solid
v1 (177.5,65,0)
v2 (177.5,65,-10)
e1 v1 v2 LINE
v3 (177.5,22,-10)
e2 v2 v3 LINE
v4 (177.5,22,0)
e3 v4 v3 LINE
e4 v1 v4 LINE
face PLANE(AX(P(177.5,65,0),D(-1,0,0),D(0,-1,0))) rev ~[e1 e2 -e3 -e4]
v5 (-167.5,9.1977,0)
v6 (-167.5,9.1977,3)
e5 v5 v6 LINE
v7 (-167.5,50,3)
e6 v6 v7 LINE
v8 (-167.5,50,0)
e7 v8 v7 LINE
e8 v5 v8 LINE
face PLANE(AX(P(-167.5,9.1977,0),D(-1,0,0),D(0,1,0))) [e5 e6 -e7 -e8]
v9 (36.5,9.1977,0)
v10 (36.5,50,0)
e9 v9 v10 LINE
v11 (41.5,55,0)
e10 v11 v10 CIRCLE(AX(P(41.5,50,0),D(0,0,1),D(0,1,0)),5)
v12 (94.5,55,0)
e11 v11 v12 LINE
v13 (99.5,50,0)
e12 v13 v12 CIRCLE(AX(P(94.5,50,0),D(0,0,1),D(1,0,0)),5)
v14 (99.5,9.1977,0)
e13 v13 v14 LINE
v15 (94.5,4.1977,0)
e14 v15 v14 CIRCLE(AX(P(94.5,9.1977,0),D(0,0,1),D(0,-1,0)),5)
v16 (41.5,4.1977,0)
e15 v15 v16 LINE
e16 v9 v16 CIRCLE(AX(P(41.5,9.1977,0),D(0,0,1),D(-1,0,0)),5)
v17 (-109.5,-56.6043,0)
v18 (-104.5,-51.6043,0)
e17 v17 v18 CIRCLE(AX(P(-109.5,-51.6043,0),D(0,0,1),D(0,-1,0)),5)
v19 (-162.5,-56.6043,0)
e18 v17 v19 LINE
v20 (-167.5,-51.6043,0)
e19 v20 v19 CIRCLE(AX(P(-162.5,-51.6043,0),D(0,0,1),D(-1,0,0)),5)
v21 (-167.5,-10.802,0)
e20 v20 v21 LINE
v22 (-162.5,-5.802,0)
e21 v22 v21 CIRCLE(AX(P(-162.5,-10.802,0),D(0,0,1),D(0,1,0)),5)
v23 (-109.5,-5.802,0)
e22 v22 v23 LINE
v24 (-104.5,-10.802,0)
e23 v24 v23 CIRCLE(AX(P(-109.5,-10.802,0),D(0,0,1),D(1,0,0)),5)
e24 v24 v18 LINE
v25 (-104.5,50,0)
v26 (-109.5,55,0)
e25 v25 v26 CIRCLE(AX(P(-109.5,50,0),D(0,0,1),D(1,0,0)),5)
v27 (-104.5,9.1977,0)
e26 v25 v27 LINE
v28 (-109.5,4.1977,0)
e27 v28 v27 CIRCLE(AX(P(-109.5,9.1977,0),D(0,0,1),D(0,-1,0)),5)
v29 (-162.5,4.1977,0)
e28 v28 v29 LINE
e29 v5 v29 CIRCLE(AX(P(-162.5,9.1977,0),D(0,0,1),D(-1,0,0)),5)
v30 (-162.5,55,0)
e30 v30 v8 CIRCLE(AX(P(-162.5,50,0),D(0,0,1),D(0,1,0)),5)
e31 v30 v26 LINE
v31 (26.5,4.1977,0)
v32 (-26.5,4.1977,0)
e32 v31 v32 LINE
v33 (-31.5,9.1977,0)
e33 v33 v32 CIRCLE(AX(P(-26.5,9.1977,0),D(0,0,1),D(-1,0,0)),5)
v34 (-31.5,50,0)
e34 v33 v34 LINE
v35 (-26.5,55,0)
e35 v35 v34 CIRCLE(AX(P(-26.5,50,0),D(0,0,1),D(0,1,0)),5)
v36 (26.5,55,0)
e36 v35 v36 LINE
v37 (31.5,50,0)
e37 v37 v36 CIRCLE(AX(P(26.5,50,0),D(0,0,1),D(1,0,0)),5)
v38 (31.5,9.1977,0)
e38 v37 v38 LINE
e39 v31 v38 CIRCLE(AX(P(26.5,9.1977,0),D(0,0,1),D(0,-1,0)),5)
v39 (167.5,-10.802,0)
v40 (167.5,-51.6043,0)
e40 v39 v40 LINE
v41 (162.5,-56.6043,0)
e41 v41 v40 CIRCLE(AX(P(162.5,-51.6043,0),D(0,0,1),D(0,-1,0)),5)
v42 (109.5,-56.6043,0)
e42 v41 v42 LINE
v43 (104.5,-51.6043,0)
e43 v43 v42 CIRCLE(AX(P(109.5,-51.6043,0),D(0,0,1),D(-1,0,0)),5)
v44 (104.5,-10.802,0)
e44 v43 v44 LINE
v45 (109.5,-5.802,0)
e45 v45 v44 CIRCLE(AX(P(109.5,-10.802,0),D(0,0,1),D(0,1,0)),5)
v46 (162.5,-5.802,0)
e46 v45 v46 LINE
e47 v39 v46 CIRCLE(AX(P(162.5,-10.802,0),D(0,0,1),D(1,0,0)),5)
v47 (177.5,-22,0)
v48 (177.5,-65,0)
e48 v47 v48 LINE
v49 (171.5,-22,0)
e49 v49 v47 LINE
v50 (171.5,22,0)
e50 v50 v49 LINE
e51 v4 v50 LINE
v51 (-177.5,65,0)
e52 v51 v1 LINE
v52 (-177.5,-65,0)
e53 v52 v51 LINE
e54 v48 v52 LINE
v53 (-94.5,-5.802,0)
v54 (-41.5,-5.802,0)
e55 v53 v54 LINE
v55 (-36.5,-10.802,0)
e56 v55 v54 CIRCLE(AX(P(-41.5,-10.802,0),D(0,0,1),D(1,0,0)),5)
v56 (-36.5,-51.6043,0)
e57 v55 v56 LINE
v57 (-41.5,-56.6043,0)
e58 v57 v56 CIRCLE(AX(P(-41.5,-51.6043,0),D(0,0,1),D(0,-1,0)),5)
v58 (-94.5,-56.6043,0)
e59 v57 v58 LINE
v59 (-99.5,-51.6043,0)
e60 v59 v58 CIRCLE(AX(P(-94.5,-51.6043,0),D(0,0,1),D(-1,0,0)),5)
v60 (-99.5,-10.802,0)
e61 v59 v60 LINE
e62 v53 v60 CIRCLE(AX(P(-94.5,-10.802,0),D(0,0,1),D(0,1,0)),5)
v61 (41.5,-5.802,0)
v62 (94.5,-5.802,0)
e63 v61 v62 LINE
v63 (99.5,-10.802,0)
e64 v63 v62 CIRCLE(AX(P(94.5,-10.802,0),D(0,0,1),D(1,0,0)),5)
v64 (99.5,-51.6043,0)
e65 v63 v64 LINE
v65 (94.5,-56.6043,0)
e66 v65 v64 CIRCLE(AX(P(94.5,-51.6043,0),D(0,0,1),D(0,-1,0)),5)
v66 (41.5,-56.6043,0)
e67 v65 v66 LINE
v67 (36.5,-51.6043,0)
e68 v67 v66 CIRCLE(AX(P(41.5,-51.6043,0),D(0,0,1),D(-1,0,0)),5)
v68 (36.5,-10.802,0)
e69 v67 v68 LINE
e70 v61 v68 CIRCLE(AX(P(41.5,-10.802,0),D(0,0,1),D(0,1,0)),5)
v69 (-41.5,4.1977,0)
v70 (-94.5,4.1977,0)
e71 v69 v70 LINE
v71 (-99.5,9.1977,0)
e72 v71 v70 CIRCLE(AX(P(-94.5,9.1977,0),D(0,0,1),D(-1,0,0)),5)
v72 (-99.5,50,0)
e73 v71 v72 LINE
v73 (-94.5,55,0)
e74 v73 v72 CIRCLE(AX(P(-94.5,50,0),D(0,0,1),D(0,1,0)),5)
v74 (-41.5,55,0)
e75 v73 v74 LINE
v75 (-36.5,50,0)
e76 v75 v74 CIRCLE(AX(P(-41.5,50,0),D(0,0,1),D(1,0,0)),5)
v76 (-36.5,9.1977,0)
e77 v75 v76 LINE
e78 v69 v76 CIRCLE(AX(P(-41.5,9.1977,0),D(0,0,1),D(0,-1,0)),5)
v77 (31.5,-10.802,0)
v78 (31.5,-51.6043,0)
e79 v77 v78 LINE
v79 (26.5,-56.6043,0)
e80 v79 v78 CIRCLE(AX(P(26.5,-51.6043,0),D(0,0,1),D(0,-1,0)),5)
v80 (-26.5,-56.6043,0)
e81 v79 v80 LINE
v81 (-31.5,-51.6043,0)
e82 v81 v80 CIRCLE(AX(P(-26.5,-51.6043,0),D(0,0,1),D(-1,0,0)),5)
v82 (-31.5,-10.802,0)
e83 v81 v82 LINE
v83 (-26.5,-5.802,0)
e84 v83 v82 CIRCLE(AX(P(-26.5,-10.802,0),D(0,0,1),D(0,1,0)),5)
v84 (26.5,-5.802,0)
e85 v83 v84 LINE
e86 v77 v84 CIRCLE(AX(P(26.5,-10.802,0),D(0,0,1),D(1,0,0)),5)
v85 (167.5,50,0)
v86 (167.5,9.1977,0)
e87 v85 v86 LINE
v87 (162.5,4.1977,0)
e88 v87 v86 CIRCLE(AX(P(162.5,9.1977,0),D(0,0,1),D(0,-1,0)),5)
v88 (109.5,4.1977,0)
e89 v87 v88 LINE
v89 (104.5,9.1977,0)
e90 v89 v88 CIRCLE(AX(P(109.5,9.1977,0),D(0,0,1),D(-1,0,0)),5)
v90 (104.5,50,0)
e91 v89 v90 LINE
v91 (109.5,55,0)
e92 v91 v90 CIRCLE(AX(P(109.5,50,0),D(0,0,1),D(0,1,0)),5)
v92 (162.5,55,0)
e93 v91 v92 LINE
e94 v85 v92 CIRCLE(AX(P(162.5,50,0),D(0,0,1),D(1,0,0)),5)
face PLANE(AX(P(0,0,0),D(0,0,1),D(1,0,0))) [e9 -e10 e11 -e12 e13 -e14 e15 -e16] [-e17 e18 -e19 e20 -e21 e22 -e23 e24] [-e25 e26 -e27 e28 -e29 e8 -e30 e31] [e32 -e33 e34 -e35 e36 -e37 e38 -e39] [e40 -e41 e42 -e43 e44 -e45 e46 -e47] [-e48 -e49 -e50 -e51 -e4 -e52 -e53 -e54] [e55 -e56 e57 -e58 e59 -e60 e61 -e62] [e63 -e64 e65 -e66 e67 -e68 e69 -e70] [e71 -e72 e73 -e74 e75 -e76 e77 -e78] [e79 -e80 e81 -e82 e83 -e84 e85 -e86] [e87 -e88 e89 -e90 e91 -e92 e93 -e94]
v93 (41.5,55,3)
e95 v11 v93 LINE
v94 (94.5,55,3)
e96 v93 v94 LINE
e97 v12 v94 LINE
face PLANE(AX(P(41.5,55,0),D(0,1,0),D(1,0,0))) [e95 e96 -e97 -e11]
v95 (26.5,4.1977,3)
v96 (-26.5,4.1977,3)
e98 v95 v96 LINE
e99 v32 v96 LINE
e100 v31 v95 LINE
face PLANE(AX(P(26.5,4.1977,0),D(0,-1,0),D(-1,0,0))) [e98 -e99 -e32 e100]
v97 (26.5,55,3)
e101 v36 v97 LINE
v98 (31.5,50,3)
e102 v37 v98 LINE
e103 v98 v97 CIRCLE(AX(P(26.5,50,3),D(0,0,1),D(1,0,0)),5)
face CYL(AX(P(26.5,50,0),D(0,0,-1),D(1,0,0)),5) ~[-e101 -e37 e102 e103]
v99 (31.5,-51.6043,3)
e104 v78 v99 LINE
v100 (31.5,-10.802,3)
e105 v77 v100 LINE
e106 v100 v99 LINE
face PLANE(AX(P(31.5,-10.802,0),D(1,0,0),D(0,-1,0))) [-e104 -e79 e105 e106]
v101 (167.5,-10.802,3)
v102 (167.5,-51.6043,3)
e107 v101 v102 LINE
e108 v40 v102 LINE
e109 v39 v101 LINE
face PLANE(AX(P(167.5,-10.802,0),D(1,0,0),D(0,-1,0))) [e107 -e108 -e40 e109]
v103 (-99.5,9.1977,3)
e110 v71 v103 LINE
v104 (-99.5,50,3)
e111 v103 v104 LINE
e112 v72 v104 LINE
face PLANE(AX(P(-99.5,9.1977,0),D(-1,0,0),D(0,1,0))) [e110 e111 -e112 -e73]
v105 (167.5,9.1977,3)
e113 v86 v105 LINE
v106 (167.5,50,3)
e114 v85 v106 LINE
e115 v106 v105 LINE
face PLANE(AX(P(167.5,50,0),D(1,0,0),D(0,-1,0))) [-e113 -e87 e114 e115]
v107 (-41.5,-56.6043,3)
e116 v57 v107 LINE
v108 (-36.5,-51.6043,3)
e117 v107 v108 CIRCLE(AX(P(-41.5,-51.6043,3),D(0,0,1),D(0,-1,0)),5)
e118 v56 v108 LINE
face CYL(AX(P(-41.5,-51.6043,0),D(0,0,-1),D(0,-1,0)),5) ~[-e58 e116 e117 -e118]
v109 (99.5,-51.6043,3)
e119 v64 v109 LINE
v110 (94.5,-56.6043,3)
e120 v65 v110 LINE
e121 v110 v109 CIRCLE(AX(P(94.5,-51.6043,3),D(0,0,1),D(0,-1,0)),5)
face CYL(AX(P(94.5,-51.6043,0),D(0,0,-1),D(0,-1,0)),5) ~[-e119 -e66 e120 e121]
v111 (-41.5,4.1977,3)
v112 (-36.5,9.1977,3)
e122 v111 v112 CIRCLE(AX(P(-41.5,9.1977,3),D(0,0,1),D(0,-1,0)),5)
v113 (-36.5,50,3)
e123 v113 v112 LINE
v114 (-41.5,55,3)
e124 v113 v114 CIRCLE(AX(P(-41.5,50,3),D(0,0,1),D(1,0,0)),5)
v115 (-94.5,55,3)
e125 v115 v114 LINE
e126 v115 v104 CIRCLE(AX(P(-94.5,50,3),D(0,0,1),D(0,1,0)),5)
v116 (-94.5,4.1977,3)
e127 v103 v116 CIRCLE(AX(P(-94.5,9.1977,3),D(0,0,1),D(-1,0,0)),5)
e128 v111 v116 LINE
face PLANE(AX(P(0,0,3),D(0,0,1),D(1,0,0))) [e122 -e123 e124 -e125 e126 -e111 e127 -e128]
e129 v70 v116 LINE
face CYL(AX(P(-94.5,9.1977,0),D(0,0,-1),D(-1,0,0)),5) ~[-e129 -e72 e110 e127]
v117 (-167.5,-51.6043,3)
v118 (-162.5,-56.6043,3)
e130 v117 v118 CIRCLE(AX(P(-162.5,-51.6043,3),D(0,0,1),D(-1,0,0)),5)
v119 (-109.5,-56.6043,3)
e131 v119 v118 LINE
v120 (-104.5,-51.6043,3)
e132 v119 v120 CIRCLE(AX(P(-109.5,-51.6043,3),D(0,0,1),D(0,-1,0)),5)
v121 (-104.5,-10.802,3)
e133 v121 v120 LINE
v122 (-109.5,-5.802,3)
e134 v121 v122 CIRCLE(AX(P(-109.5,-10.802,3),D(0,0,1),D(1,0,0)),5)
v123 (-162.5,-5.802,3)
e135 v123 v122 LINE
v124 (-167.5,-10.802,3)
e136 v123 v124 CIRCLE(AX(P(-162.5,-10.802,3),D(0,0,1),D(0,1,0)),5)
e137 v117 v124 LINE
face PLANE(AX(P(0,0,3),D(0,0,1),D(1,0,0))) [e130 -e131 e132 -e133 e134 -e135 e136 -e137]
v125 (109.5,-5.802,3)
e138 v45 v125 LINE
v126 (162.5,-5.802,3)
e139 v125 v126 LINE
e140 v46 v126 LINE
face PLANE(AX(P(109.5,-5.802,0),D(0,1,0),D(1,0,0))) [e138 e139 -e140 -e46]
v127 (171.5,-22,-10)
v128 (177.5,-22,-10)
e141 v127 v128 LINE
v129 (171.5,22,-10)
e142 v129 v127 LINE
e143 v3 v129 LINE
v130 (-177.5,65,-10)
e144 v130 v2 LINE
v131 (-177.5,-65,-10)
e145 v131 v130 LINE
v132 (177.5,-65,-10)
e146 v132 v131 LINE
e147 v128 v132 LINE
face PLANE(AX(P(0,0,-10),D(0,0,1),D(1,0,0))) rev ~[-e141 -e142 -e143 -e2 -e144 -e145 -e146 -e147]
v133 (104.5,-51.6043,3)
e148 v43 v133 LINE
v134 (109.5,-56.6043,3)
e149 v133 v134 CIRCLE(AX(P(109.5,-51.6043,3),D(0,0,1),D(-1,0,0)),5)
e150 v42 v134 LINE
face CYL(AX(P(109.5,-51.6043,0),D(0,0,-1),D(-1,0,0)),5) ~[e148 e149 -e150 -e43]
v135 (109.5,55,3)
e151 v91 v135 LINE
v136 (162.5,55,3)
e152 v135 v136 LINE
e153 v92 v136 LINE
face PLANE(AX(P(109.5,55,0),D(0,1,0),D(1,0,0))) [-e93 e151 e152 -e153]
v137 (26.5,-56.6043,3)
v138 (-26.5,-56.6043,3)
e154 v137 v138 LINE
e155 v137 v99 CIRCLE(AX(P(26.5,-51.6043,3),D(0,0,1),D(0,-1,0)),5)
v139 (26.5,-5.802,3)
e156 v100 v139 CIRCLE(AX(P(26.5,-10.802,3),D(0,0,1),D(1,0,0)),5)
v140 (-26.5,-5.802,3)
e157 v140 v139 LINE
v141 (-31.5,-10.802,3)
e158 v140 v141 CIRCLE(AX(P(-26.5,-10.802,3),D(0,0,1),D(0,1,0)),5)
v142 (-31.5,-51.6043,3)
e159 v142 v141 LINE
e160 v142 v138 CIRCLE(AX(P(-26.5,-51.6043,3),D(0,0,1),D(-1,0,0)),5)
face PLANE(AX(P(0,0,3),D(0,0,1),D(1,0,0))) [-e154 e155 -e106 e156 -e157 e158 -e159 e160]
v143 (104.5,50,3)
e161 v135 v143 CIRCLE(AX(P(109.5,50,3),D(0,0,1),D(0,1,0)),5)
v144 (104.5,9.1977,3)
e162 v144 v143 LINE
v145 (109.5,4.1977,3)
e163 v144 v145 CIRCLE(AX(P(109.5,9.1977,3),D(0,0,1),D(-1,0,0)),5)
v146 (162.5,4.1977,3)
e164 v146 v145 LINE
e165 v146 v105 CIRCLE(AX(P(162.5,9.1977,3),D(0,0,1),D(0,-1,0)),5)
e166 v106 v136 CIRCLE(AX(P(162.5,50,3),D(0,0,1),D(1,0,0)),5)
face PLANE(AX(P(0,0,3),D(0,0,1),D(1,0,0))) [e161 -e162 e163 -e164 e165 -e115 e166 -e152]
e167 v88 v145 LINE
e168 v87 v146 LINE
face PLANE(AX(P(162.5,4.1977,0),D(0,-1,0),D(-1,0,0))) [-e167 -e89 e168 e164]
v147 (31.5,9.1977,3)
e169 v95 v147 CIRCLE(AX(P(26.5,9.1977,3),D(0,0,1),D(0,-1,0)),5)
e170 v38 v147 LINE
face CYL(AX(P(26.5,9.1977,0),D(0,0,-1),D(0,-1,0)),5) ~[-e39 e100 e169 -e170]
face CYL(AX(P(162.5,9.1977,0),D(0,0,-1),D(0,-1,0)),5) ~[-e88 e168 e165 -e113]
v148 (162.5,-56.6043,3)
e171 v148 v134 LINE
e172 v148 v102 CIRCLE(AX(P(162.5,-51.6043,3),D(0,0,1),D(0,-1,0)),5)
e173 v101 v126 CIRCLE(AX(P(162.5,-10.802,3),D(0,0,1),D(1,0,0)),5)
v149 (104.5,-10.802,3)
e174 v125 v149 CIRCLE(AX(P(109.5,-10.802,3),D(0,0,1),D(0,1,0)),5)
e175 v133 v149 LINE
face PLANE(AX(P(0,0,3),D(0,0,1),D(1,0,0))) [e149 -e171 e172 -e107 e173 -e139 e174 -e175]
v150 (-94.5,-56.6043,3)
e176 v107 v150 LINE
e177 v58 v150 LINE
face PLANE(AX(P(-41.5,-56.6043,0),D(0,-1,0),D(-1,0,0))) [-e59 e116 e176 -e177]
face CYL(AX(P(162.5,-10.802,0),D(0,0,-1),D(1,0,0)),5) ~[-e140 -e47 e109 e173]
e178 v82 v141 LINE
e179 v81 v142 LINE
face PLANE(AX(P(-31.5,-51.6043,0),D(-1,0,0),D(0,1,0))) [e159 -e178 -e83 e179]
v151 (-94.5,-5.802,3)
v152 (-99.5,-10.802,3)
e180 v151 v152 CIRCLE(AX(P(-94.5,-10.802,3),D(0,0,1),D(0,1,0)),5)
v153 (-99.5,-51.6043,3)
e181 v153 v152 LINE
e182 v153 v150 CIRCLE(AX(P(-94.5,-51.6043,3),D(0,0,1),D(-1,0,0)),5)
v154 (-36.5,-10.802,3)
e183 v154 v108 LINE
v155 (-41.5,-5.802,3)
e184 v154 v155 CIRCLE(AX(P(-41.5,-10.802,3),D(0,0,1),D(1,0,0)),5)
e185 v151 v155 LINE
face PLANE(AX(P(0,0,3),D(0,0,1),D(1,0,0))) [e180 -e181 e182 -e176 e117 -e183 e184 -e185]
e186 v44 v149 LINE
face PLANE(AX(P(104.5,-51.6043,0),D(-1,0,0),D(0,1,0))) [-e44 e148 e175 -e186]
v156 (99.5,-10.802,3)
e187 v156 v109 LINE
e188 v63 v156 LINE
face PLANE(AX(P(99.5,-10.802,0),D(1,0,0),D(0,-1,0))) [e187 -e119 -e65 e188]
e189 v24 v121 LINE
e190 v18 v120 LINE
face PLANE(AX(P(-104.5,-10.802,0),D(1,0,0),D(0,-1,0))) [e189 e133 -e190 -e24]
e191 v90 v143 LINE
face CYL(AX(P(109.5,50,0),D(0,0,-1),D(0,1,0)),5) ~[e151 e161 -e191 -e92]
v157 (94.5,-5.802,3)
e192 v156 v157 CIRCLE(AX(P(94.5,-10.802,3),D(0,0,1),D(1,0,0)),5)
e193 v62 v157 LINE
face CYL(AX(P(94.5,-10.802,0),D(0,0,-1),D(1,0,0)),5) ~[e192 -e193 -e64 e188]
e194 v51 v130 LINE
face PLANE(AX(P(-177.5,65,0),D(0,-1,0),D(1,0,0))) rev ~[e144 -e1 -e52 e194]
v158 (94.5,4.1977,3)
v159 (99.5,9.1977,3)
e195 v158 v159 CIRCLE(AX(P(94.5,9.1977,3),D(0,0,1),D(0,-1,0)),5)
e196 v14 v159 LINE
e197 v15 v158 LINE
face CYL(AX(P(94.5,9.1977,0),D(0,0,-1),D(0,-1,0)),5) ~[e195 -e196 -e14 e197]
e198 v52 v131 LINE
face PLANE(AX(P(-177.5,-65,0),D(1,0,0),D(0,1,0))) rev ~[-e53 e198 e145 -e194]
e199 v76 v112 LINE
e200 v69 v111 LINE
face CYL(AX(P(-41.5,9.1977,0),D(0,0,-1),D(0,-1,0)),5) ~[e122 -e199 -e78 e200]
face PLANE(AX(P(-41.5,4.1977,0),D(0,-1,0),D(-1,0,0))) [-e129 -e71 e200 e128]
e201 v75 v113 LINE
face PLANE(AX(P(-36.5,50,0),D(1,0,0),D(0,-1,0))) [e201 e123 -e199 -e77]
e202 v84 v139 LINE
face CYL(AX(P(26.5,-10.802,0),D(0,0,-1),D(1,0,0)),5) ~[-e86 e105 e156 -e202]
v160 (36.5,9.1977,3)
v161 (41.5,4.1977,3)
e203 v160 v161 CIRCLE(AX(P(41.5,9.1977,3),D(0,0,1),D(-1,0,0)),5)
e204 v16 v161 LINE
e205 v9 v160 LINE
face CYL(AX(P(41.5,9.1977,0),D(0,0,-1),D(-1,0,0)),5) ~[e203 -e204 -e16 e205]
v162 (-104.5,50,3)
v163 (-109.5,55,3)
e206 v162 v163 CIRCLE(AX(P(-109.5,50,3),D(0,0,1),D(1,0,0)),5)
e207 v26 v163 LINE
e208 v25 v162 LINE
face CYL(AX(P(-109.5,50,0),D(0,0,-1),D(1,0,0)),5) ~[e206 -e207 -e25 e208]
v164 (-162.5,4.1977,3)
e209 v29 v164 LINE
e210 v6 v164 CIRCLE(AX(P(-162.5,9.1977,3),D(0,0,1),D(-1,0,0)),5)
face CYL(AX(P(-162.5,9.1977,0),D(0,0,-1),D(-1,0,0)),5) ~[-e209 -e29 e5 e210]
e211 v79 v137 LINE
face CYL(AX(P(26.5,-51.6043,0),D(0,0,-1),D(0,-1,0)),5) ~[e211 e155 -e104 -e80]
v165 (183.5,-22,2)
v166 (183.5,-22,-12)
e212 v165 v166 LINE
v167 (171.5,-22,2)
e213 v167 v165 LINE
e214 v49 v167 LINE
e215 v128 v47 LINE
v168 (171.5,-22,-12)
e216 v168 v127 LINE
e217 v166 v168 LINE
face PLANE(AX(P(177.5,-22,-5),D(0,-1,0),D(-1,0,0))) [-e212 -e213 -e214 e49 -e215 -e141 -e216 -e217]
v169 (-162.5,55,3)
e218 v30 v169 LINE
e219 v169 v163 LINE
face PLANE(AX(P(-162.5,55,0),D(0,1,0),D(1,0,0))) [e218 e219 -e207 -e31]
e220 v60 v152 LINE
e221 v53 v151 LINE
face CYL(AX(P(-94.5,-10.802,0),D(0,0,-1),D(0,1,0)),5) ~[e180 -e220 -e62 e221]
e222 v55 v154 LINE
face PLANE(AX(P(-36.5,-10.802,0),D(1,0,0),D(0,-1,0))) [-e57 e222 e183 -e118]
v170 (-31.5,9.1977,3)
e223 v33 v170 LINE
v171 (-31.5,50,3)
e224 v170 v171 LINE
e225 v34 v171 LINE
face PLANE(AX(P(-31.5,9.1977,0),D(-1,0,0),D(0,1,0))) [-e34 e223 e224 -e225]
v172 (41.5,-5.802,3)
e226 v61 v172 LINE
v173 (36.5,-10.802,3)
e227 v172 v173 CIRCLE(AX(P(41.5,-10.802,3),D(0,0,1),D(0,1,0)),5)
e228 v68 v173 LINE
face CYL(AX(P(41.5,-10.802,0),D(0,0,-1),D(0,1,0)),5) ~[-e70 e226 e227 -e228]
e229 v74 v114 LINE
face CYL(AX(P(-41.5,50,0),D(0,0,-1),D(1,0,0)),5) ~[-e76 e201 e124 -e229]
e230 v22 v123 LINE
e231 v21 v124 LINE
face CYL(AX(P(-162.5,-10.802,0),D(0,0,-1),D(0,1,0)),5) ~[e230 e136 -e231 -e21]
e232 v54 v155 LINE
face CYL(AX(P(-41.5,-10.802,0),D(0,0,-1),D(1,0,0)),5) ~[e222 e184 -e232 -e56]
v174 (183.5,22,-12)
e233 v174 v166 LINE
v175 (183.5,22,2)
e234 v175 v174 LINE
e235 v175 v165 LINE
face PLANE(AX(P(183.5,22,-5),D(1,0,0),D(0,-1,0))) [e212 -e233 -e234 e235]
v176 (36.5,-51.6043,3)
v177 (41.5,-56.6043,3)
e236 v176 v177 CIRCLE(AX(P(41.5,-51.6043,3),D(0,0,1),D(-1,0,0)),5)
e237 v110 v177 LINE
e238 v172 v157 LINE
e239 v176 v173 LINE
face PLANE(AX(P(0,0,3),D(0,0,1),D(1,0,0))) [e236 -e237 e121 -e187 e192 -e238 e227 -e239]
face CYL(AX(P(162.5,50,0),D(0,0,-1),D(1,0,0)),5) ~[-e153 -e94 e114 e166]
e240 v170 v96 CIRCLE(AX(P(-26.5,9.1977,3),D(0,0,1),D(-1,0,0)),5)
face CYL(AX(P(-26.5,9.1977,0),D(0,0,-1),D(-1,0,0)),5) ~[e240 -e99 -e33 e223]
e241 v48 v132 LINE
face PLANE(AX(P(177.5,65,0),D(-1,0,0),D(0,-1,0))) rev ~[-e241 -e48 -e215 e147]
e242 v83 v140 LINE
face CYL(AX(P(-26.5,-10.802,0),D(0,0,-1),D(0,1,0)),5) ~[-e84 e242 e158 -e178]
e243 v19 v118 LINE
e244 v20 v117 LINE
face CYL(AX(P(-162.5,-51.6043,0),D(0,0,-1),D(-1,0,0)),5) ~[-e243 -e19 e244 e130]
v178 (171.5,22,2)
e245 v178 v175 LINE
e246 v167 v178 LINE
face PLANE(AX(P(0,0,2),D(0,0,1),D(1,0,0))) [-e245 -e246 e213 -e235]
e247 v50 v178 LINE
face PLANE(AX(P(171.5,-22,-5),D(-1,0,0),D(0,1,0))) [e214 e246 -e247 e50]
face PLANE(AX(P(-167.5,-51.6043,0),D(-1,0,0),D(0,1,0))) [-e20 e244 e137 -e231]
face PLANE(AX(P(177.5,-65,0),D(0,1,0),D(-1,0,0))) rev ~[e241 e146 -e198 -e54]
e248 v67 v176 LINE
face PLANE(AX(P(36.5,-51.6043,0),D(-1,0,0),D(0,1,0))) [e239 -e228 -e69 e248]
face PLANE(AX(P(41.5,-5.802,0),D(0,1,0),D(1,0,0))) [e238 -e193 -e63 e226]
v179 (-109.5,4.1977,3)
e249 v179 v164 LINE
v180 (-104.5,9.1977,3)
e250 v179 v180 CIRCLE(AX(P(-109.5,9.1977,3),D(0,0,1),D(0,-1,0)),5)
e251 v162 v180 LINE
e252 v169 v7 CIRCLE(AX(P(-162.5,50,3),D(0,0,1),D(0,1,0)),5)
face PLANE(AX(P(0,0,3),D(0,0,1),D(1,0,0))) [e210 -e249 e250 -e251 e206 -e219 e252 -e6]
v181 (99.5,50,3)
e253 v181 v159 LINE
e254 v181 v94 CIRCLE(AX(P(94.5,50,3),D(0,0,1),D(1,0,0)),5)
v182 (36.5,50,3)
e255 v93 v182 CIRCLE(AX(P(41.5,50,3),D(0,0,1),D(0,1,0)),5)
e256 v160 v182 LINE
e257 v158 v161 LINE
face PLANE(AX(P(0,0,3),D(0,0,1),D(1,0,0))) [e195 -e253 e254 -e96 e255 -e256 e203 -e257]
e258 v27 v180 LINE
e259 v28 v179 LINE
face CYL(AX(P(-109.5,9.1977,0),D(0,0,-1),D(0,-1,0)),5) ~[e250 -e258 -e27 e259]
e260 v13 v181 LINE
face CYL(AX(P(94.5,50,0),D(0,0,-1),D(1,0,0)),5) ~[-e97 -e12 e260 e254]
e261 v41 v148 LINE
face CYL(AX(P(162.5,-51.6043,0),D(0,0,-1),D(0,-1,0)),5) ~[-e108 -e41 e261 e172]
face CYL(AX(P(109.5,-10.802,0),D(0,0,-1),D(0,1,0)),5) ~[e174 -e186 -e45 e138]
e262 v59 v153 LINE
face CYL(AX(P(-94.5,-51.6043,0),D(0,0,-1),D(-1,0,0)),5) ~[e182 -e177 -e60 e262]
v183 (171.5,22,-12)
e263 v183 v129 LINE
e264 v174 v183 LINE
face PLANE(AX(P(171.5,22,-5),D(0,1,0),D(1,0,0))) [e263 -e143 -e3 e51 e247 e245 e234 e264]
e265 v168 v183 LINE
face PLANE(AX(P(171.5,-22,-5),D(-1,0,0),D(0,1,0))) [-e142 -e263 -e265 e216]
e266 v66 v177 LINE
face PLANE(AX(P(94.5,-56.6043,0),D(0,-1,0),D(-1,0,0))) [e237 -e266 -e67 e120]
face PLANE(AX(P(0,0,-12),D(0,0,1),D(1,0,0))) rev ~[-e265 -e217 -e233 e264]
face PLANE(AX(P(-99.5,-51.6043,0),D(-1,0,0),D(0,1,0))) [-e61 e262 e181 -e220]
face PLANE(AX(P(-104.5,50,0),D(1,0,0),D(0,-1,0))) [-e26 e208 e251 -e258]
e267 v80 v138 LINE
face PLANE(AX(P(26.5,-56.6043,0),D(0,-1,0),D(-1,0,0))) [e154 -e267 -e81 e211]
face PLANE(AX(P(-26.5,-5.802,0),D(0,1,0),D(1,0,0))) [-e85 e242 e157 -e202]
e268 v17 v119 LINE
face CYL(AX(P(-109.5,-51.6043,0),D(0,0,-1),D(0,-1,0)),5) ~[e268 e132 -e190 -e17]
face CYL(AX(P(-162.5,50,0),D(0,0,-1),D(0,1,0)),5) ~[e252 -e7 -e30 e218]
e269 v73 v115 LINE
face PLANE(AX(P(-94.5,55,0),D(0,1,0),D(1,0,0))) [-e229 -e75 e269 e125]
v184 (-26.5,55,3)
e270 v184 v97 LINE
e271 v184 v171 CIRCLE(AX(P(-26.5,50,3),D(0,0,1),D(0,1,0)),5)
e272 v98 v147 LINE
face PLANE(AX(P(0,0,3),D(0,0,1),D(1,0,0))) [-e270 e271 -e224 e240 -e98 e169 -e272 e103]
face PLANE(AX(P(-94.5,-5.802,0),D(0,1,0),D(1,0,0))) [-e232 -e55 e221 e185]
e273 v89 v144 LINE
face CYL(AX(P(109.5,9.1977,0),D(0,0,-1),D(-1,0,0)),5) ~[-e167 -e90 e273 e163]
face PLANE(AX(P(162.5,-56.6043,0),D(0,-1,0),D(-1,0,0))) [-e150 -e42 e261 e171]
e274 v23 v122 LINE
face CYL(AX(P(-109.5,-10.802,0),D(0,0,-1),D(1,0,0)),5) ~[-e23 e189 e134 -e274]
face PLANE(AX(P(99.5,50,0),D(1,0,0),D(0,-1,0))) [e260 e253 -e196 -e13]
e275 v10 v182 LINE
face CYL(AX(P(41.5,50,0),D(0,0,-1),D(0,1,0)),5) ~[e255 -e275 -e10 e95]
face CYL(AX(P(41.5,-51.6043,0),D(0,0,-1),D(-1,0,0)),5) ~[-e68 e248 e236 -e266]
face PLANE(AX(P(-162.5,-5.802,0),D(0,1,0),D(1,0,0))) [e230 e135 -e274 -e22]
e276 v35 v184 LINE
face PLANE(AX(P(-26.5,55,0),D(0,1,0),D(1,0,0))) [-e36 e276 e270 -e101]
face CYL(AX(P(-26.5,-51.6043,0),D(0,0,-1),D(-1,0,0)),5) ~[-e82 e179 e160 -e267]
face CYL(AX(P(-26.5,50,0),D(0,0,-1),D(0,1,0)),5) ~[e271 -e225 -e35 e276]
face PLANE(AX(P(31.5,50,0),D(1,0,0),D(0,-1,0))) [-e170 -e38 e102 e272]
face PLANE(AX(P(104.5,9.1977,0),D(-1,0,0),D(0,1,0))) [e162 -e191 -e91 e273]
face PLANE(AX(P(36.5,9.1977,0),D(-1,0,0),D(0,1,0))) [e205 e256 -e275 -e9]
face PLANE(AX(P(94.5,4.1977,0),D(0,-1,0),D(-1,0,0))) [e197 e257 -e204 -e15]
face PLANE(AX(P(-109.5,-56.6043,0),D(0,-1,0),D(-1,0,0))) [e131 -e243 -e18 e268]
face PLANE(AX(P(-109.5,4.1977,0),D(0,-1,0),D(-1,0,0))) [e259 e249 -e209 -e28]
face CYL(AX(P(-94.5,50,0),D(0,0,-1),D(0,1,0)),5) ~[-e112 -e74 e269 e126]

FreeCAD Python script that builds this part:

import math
import FreeCAD as App
import Part
import Sketcher
from FreeCAD import Vector


def add_polygon(sketch, points):
    """Adds a closed chain of lines whose ends are joined by coincident constraints."""
    first, n = sketch.GeometryCount, len(points)
    for a, b in zip(points, points[1:] + points[:1]):
        sketch.addGeometry(Part.LineSegment(App.Vector(*a, 0), App.Vector(*b, 0)), False)
    for i in range(n):
        sketch.addConstraint(Sketcher.Constraint("Coincident", first + i, 2, first + (i + 1) % n, 1))

doc = App.newDocument("Part")
params = doc.addObject("Spreadsheet::Sheet", "Params")
for row, (alias, value) in enumerate([
    ("sketch1_width", "355 mm"),
    ("sketch1_height", "130 mm"),
    ("pad1_length", "10 mm"),
    ("sketch2_radius", "5 mm"),
    ("sketch2_width", "53 mm"),
    ("pad2_length", "3 mm"),
    ("sketch3_width", "12 mm"),
    ("sketch3_height", "44 mm"),
    ("pad3_length", "14 mm"),
], start=1):
    params.set(f"A{row}", alias)
    params.set(f"B{row}", "=" + value)
    params.setAlias(f"B{row}", alias)

body = doc.addObject("PartDesign::Body", "Body")

# Sketch on XY plane
sketch1 = body.newObject("Sketcher::SketchObject", "Sketch")
sketch1.AttachmentSupport = (doc.getObject("XY_Plane"), [""])
sketch1.MapMode = "FlatFace"
add_polygon(sketch1, [(177.5, 65), (-177.5, 65), (-177.5, -65), (177.5, -65)])  # lines 0-3
sketch1.addConstraint([
    Sketcher.Constraint("Horizontal", 0),
    Sketcher.Constraint("Vertical", 1),
    Sketcher.Constraint("Horizontal", 2),
    Sketcher.Constraint("Vertical", 3),
    Sketcher.Constraint("Symmetric", 0, 2, 2, 2, -1, 1),
    Sketcher.Constraint("DistanceX", 0, 2, 0, 1, 355.0),
    Sketcher.Constraint("DistanceY", 1, 2, 1, 1, 130.0),
])
sketch1.setExpression("Constraints[9]", "Params.sketch1_width")
sketch1.setExpression("Constraints[10]", "Params.sketch1_height")
pad1 = body.newObject("PartDesign::Pad", "Pad")
pad1.Profile = sketch1
pad1.setExpression("Length", "Params.pad1_length")
pad1.Reversed = True

# Sketch on XY plane
sketch2 = body.newObject("Sketcher::SketchObject", "Sketch001")
sketch2.AttachmentSupport = (doc.getObject("XY_Plane"), [""])
sketch2.MapMode = "FlatFace"
sketch2.addGeometry([
    Part.LineSegment(Vector(-109.5, 55, 0), Vector(-162.5, 55, 0)),  # 0
    Part.ArcOfCircle(Part.Circle(Vector(-162.5, 50, 0), Vector(0, 0, 1), 5), math.radians(90), math.radians(180)),  # 1
    Part.LineSegment(Vector(-167.5, 50, 0), Vector(-167.5, 9.1977, 0)),  # 2
    Part.ArcOfCircle(Part.Circle(Vector(-162.5, 9.1977, 0), Vector(0, 0, 1), 5), math.radians(180), math.radians(270)),  # 3
    Part.LineSegment(Vector(-162.5, 4.1977, 0), Vector(-109.5, 4.1977, 0)),  # 4
    Part.ArcOfCircle(Part.Circle(Vector(-109.5, 9.1977, 0), Vector(0, 0, 1), 5), math.radians(-90), math.radians(0)),  # 5
    Part.LineSegment(Vector(-104.5, 9.1977, 0), Vector(-104.5, 50, 0)),  # 6
    Part.ArcOfCircle(Part.Circle(Vector(-109.5, 50, 0), Vector(0, 0, 1), 5), math.radians(0), math.radians(90)),  # 7
    Part.LineSegment(Vector(-41.5, 55, 0), Vector(-94.5, 55, 0)),  # 8
    Part.ArcOfCircle(Part.Circle(Vector(-94.5, 50, 0), Vector(0, 0, 1), 5), math.radians(90), math.radians(180)),  # 9
    Part.LineSegment(Vector(-99.5, 50, 0), Vector(-99.5, 9.1977, 0)),  # 10
    Part.ArcOfCircle(Part.Circle(Vector(-94.5, 9.1977, 0), Vector(0, 0, 1), 5), math.radians(180), math.radians(270)),  # 11
    Part.LineSegment(Vector(-94.5, 4.1977, 0), Vector(-41.5, 4.1977, 0)),  # 12
    Part.ArcOfCircle(Part.Circle(Vector(-41.5, 9.1977, 0), Vector(0, 0, 1), 5), math.radians(-90), math.radians(0)),  # 13
    Part.LineSegment(Vector(-36.5, 9.1977, 0), Vector(-36.5, 50, 0)),  # 14
    Part.ArcOfCircle(Part.Circle(Vector(-41.5, 50, 0), Vector(0, 0, 1), 5), math.radians(0), math.radians(90)),  # 15
    Part.LineSegment(Vector(26.5, 55, 0), Vector(-26.5, 55, 0)),  # 16
    Part.ArcOfCircle(Part.Circle(Vector(-26.5, 50, 0), Vector(0, 0, 1), 5), math.radians(90), math.radians(180)),  # 17
    Part.LineSegment(Vector(-31.5, 50, 0), Vector(-31.5, 9.1977, 0)),  # 18
    Part.ArcOfCircle(Part.Circle(Vector(-26.5, 9.1977, 0), Vector(0, 0, 1), 5), math.radians(180), math.radians(270)),  # 19
    Part.LineSegment(Vector(-26.5, 4.1977, 0), Vector(26.5, 4.1977, 0)),  # 20
    Part.ArcOfCircle(Part.Circle(Vector(26.5, 9.1977, 0), Vector(0, 0, 1), 5), math.radians(-90), math.radians(0)),  # 21
    Part.LineSegment(Vector(31.5, 9.1977, 0), Vector(31.5, 50, 0)),  # 22
    Part.ArcOfCircle(Part.Circle(Vector(26.5, 50, 0), Vector(0, 0, 1), 5), math.radians(0), math.radians(90)),  # 23
    Part.LineSegment(Vector(94.5, 55, 0), Vector(41.5, 55, 0)),  # 24
    Part.ArcOfCircle(Part.Circle(Vector(41.5, 50, 0), Vector(0, 0, 1), 5), math.radians(90), math.radians(180)),  # 25
    Part.LineSegment(Vector(36.5, 50, 0), Vector(36.5, 9.1977, 0)),  # 26
    Part.ArcOfCircle(Part.Circle(Vector(41.5, 9.1977, 0), Vector(0, 0, 1), 5), math.radians(180), math.radians(270)),  # 27
    Part.LineSegment(Vector(41.5, 4.1977, 0), Vector(94.5, 4.1977, 0)),  # 28
    Part.ArcOfCircle(Part.Circle(Vector(94.5, 9.1977, 0), Vector(0, 0, 1), 5), math.radians(-90), math.radians(0)),  # 29
    Part.LineSegment(Vector(99.5, 9.1977, 0), Vector(99.5, 50, 0)),  # 30
    Part.ArcOfCircle(Part.Circle(Vector(94.5, 50, 0), Vector(0, 0, 1), 5), math.radians(0), math.radians(90)),  # 31
    Part.LineSegment(Vector(162.5, 55, 0), Vector(109.5, 55, 0)),  # 32
    Part.ArcOfCircle(Part.Circle(Vector(109.5, 50, 0), Vector(0, 0, 1), 5), math.radians(90), math.radians(180)),  # 33
    Part.LineSegment(Vector(104.5, 50, 0), Vector(104.5, 9.1977, 0)),  # 34
    Part.ArcOfCircle(Part.Circle(Vector(109.5, 9.1977, 0), Vector(0, 0, 1), 5), math.radians(180), math.radians(270)),  # 35
    Part.LineSegment(Vector(109.5, 4.1977, 0), Vector(162.5, 4.1977, 0)),  # 36
    Part.ArcOfCircle(Part.Circle(Vector(162.5, 9.1977, 0), Vector(0, 0, 1), 5), math.radians(-90), math.radians(0)),  # 37
    Part.LineSegment(Vector(167.5, 9.1977, 0), Vector(167.5, 50, 0)),  # 38
    Part.ArcOfCircle(Part.Circle(Vector(162.5, 50, 0), Vector(0, 0, 1), 5), math.radians(0), math.radians(90)),  # 39
    Part.LineSegment(Vector(-109.5, -5.802, 0), Vector(-162.5, -5.802, 0)),  # 40
    Part.ArcOfCircle(Part.Circle(Vector(-162.5, -10.802, 0), Vector(0, 0, 1), 5), math.radians(90), math.radians(180)),  # 41
    Part.LineSegment(Vector(-167.5, -10.802, 0), Vector(-167.5, -51.6043, 0)),  # 42
    Part.ArcOfCircle(Part.Circle(Vector(-162.5, -51.6043, 0), Vector(0, 0, 1), 5), math.radians(180), math.radians(270)),  # 43
    Part.LineSegment(Vector(-162.5, -56.6043, 0), Vector(-109.5, -56.6043, 0)),  # 44
    Part.ArcOfCircle(Part.Circle(Vector(-109.5, -51.6043, 0), Vector(0, 0, 1), 5), math.radians(-90), math.radians(0)),  # 45
    Part.LineSegment(Vector(-104.5, -51.6043, 0), Vector(-104.5, -10.802, 0)),  # 46
    Part.ArcOfCircle(Part.Circle(Vector(-109.5, -10.802, 0), Vector(0, 0, 1), 5), math.radians(0), math.radians(90)),  # 47
    Part.LineSegment(Vector(-99.5, -10.802, 0), Vector(-99.5, -51.6043, 0)),  # 48
    Part.ArcOfCircle(Part.Circle(Vector(-94.5, -51.6043, 0), Vector(0, 0, 1), 5), math.radians(180), math.radians(270)),  # 49
    Part.LineSegment(Vector(-94.5, -56.6043, 0), Vector(-41.5, -56.6043, 0)),  # 50
    Part.ArcOfCircle(Part.Circle(Vector(-41.5, -51.6043, 0), Vector(0, 0, 1), 5), math.radians(-90), math.radians(0)),  # 51
    Part.LineSegment(Vector(-36.5, -51.6043, 0), Vector(-36.5, -10.802, 0)),  # 52
    Part.ArcOfCircle(Part.Circle(Vector(-41.5, -10.802, 0), Vector(0, 0, 1), 5), math.radians(0), math.radians(90)),  # 53
    Part.LineSegment(Vector(-41.5, -5.802, 0), Vector(-94.5, -5.802, 0)),  # 54
    Part.ArcOfCircle(Part.Circle(Vector(-94.5, -10.802, 0), Vector(0, 0, 1), 5), math.radians(90), math.radians(180)),  # 55
    Part.LineSegment(Vector(-31.5, -10.802, 0), Vector(-31.5, -51.6043, 0)),  # 56
    Part.ArcOfCircle(Part.Circle(Vector(-26.5, -51.6043, 0), Vector(0, 0, 1), 5), math.radians(180), math.radians(270)),  # 57
    Part.LineSegment(Vector(-26.5, -56.6043, 0), Vector(26.5, -56.6043, 0)),  # 58
    Part.ArcOfCircle(Part.Circle(Vector(26.5, -51.6043, 0), Vector(0, 0, 1), 5), math.radians(-90), math.radians(0)),  # 59
    Part.LineSegment(Vector(31.5, -51.6043, 0), Vector(31.5, -10.802, 0)),  # 60
    Part.ArcOfCircle(Part.Circle(Vector(26.5, -10.802, 0), Vector(0, 0, 1), 5), math.radians(0), math.radians(90)),  # 61
    Part.LineSegment(Vector(26.5, -5.802, 0), Vector(-26.5, -5.802, 0)),  # 62
    Part.ArcOfCircle(Part.Circle(Vector(-26.5, -10.802, 0), Vector(0, 0, 1), 5), math.radians(90), math.radians(180)),  # 63
    Part.LineSegment(Vector(94.5, -5.802, 0), Vector(41.5, -5.802, 0)),  # 64
    Part.ArcOfCircle(Part.Circle(Vector(41.5, -10.802, 0), Vector(0, 0, 1), 5), math.radians(90), math.radians(180)),  # 65
    Part.LineSegment(Vector(36.5, -10.802, 0), Vector(36.5, -51.6043, 0)),  # 66
    Part.ArcOfCircle(Part.Circle(Vector(41.5, -51.6043, 0), Vector(0, 0, 1), 5), math.radians(180), math.radians(270)),  # 67
    Part.LineSegment(Vector(41.5, -56.6043, 0), Vector(94.5, -56.6043, 0)),  # 68
    Part.ArcOfCircle(Part.Circle(Vector(94.5, -51.6043, 0), Vector(0, 0, 1), 5), math.radians(-90), math.radians(0)),  # 69
    Part.LineSegment(Vector(99.5, -51.6043, 0), Vector(99.5, -10.802, 0)),  # 70
    Part.ArcOfCircle(Part.Circle(Vector(94.5, -10.802, 0), Vector(0, 0, 1), 5), math.radians(0), math.radians(90)),  # 71
    Part.LineSegment(Vector(104.5, -10.802, 0), Vector(104.5, -51.6043, 0)),  # 72
    Part.ArcOfCircle(Part.Circle(Vector(109.5, -51.6043, 0), Vector(0, 0, 1), 5), math.radians(180), math.radians(270)),  # 73
    Part.LineSegment(Vector(109.5, -56.6043, 0), Vector(162.5, -56.6043, 0)),  # 74
    Part.ArcOfCircle(Part.Circle(Vector(162.5, -51.6043, 0), Vector(0, 0, 1), 5), math.radians(-90), math.radians(0)),  # 75
    Part.LineSegment(Vector(167.5, -51.6043, 0), Vector(167.5, -10.802, 0)),  # 76
    Part.ArcOfCircle(Part.Circle(Vector(162.5, -10.802, 0), Vector(0, 0, 1), 5), math.radians(0), math.radians(90)),  # 77
    Part.LineSegment(Vector(162.5, -5.802, 0), Vector(109.5, -5.802, 0)),  # 78
    Part.ArcOfCircle(Part.Circle(Vector(109.5, -10.802, 0), Vector(0, 0, 1), 5), math.radians(90), math.radians(180)),  # 79
], False)
sketch2.addConstraint([
    Sketcher.Constraint("Tangent", 0, 2, 1, 1),
    Sketcher.Constraint("Tangent", 1, 2, 2, 1),
    Sketcher.Constraint("Tangent", 2, 2, 3, 1),
    Sketcher.Constraint("Tangent", 3, 2, 4, 1),
    Sketcher.Constraint("Tangent", 4, 2, 5, 1),
    Sketcher.Constraint("Tangent", 5, 2, 6, 1),
    Sketcher.Constraint("Tangent", 6, 2, 7, 1),
    Sketcher.Constraint("Tangent", 7, 2, 0, 1),
    Sketcher.Constraint("Tangent", 8, 2, 9, 1),
    Sketcher.Constraint("Tangent", 9, 2, 10, 1),
    Sketcher.Constraint("Tangent", 10, 2, 11, 1),
    Sketcher.Constraint("Tangent", 11, 2, 12, 1),
    Sketcher.Constraint("Tangent", 12, 2, 13, 1),
    Sketcher.Constraint("Tangent", 13, 2, 14, 1),
    Sketcher.Constraint("Tangent", 14, 2, 15, 1),
    Sketcher.Constraint("Tangent", 15, 2, 8, 1),
    Sketcher.Constraint("Tangent", 16, 2, 17, 1),
    Sketcher.Constraint("Tangent", 17, 2, 18, 1),
    Sketcher.Constraint("Tangent", 18, 2, 19, 1),
    Sketcher.Constraint("Tangent", 19, 2, 20, 1),
    Sketcher.Constraint("Tangent", 20, 2, 21, 1),
    Sketcher.Constraint("Tangent", 21, 2, 22, 1),
    Sketcher.Constraint("Tangent", 22, 2, 23, 1),
    Sketcher.Constraint("Tangent", 23, 2, 16, 1),
    Sketcher.Constraint("Tangent", 24, 2, 25, 1),
    Sketcher.Constraint("Tangent", 25, 2, 26, 1),
    Sketcher.Constraint("Tangent", 26, 2, 27, 1),
    Sketcher.Constraint("Tangent", 27, 2, 28, 1),
    Sketcher.Constraint("Tangent", 28, 2, 29, 1),
    Sketcher.Constraint("Tangent", 29, 2, 30, 1),
    Sketcher.Constraint("Tangent", 30, 2, 31, 1),
    Sketcher.Constraint("Tangent", 31, 2, 24, 1),
    Sketcher.Constraint("Tangent", 32, 2, 33, 1),
    Sketcher.Constraint("Tangent", 33, 2, 34, 1),
    Sketcher.Constraint("Tangent", 34, 2, 35, 1),
    Sketcher.Constraint("Tangent", 35, 2, 36, 1),
    Sketcher.Constraint("Tangent", 36, 2, 37, 1),
    Sketcher.Constraint("Tangent", 37, 2, 38, 1),
    Sketcher.Constraint("Tangent", 38, 2, 39, 1),
    Sketcher.Constraint("Tangent", 39, 2, 32, 1),
    Sketcher.Constraint("Tangent", 40, 2, 41, 1),
    Sketcher.Constraint("Tangent", 41, 2, 42, 1),
    Sketcher.Constraint("Tangent", 42, 2, 43, 1),
    Sketcher.Constraint("Tangent", 43, 2, 44, 1),
    Sketcher.Constraint("Tangent", 44, 2, 45, 1),
    Sketcher.Constraint("Tangent", 45, 2, 46, 1),
    Sketcher.Constraint("Tangent", 46, 2, 47, 1),
    Sketcher.Constraint("Tangent", 47, 2, 40, 1),
    Sketcher.Constraint("Tangent", 48, 2, 49, 1),
    Sketcher.Constraint("Tangent", 49, 2, 50, 1),
    Sketcher.Constraint("Tangent", 50, 2, 51, 1),
    Sketcher.Constraint("Tangent", 51, 2, 52, 1),
    Sketcher.Constraint("Tangent", 52, 2, 53, 1),
    Sketcher.Constraint("Tangent", 53, 2, 54, 1),
    Sketcher.Constraint("Tangent", 54, 2, 55, 1),
    Sketcher.Constraint("Tangent", 55, 2, 48, 1),
    Sketcher.Constraint("Tangent", 56, 2, 57, 1),
    Sketcher.Constraint("Tangent", 57, 2, 58, 1),
    Sketcher.Constraint("Tangent", 58, 2, 59, 1),
    Sketcher.Constraint("Tangent", 59, 2, 60, 1),
    Sketcher.Constraint("Tangent", 60, 2, 61, 1),
    Sketcher.Constraint("Tangent", 61, 2, 62, 1),
    Sketcher.Constraint("Tangent", 62, 2, 63, 1),
    Sketcher.Constraint("Tangent", 63, 2, 56, 1),
    Sketcher.Constraint("Tangent", 64, 2, 65, 1),
    Sketcher.Constraint("Tangent", 65, 2, 66, 1),
    Sketcher.Constraint("Tangent", 66, 2, 67, 1),
    Sketcher.Constraint("Tangent", 67, 2, 68, 1),
    Sketcher.Constraint("Tangent", 68, 2, 69, 1),
    Sketcher.Constraint("Tangent", 69, 2, 70, 1),
    Sketcher.Constraint("Tangent", 70, 2, 71, 1),
    Sketcher.Constraint("Tangent", 71, 2, 64, 1),
    Sketcher.Constraint("Tangent", 72, 2, 73, 1),
    Sketcher.Constraint("Tangent", 73, 2, 74, 1),
    Sketcher.Constraint("Tangent", 74, 2, 75, 1),
    Sketcher.Constraint("Tangent", 75, 2, 76, 1),
    Sketcher.Constraint("Tangent", 76, 2, 77, 1),
    Sketcher.Constraint("Tangent", 77, 2, 78, 1),
    Sketcher.Constraint("Tangent", 78, 2, 79, 1),
    Sketcher.Constraint("Tangent", 79, 2, 72, 1),
    Sketcher.Constraint("Horizontal", 0),
    Sketcher.Constraint("Vertical", 2),
    Sketcher.Constraint("Horizontal", 4),
    Sketcher.Constraint("Vertical", 6),
    Sketcher.Constraint("Horizontal", 8),
    Sketcher.Constraint("Vertical", 10),
    Sketcher.Constraint("Horizontal", 12),
    Sketcher.Constraint("Vertical", 14),
    Sketcher.Constraint("Horizontal", 16),
    Sketcher.Constraint("Vertical", 18),
    Sketcher.Constraint("Horizontal", 20),
    Sketcher.Constraint("Vertical", 22),
    Sketcher.Constraint("Horizontal", 24),
    Sketcher.Constraint("Vertical", 26),
    Sketcher.Constraint("Horizontal", 28),
    Sketcher.Constraint("Vertical", 30),
    Sketcher.Constraint("Horizontal", 32),
    Sketcher.Constraint("Vertical", 34),
    Sketcher.Constraint("Horizontal", 36),
    Sketcher.Constraint("Vertical", 38),
    Sketcher.Constraint("Horizontal", 40),
    Sketcher.Constraint("Vertical", 42),
    Sketcher.Constraint("Horizontal", 44),
    Sketcher.Constraint("Vertical", 46),
    Sketcher.Constraint("Vertical", 48),
    Sketcher.Constraint("Horizontal", 50),
    Sketcher.Constraint("Vertical", 52),
    Sketcher.Constraint("Horizontal", 54),
    Sketcher.Constraint("Vertical", 56),
    Sketcher.Constraint("Horizontal", 58),
    Sketcher.Constraint("Vertical", 60),
    Sketcher.Constraint("Horizontal", 62),
    Sketcher.Constraint("Horizontal", 64),
    Sketcher.Constraint("Vertical", 66),
    Sketcher.Constraint("Horizontal", 68),
    Sketcher.Constraint("Vertical", 70),
    Sketcher.Constraint("Vertical", 72),
    Sketcher.Constraint("Horizontal", 74),
    Sketcher.Constraint("Vertical", 76),
    Sketcher.Constraint("Horizontal", 78),
    Sketcher.Constraint("Equal", 1, 3),
    Sketcher.Constraint("Equal", 3, 5),
    Sketcher.Constraint("Equal", 5, 7),
    Sketcher.Constraint("Equal", 7, 9),
    Sketcher.Constraint("Equal", 9, 11),
    Sketcher.Constraint("Equal", 11, 13),
    Sketcher.Constraint("Equal", 13, 15),
    Sketcher.Constraint("Equal", 15, 17),
    Sketcher.Constraint("Equal", 17, 19),
    Sketcher.Constraint("Equal", 19, 21),
    Sketcher.Constraint("Equal", 21, 23),
    Sketcher.Constraint("Equal", 23, 25),
    Sketcher.Constraint("Equal", 25, 27),
    Sketcher.Constraint("Equal", 27, 29),
    Sketcher.Constraint("Equal", 29, 31),
    Sketcher.Constraint("Equal", 31, 33),
    Sketcher.Constraint("Equal", 33, 35),
    Sketcher.Constraint("Equal", 35, 37),
    Sketcher.Constraint("Equal", 37, 39),
    Sketcher.Constraint("Equal", 39, 41),
    Sketcher.Constraint("Equal", 41, 43),
    Sketcher.Constraint("Equal", 43, 45),
    Sketcher.Constraint("Equal", 45, 47),
    Sketcher.Constraint("Equal", 47, 49),
    Sketcher.Constraint("Equal", 49, 51),
    Sketcher.Constraint("Equal", 51, 53),
    Sketcher.Constraint("Equal", 53, 55),
    Sketcher.Constraint("Equal", 55, 57),
    Sketcher.Constraint("Equal", 57, 59),
    Sketcher.Constraint("Equal", 59, 61),
    Sketcher.Constraint("Equal", 61, 63),
    Sketcher.Constraint("Equal", 63, 65),
    Sketcher.Constraint("Equal", 65, 67),
    Sketcher.Constraint("Equal", 67, 69),
    Sketcher.Constraint("Equal", 69, 71),
    Sketcher.Constraint("Equal", 71, 73),
    Sketcher.Constraint("Equal", 73, 75),
    Sketcher.Constraint("Equal", 75, 77),
    Sketcher.Constraint("Equal", 77, 79),
    Sketcher.Constraint("Symmetric", 15, 3, 25, 3, -2),
    Sketcher.Constraint("Symmetric", 11, 3, 29, 3, -2),
    Sketcher.Constraint("Symmetric", 7, 3, 33, 3, -2),
    Sketcher.Constraint("Symmetric", 3, 3, 37, 3, -2),
    Sketcher.Constraint("Symmetric", 53, 3, 65, 3, -2),
    Sketcher.Constraint("Symmetric", 49, 3, 69, 3, -2),
    Sketcher.Constraint("Symmetric", 45, 3, 73, 3, -2),
    Sketcher.Constraint("Symmetric", 41, 3, 77, 3, -2),
    Sketcher.Constraint("Horizontal", 7, 3, 9, 3),
    Sketcher.Constraint("Horizontal", 5, 3, 11, 3),
    Sketcher.Constraint("Horizontal", 15, 3, 17, 3),
    Sketcher.Constraint("Horizontal", 13, 3, 19, 3),
    Sketcher.Constraint("Horizontal", 45, 3, 49, 3),
    Sketcher.Constraint("Horizontal", 47, 3, 53, 3),
    Sketcher.Constraint("Horizontal", 51, 3, 57, 3),
    Sketcher.Constraint("Horizontal", 55, 3, 61, 3),
    Sketcher.Constraint("Vertical", 3, 3, 41, 3),
    Sketcher.Constraint("Vertical", 7, 3, 45, 3),
    Sketcher.Constraint("Vertical", 11, 3, 49, 3),
    Sketcher.Constraint("Vertical", 15, 3, 51, 3),
    Sketcher.Constraint("Vertical", 19, 3, 57, 3),
    Sketcher.Constraint("Vertical", 23, 3, 59, 3),
    Sketcher.Constraint("Equal", 4, 8),
    Sketcher.Constraint("Equal", 12, 16),
    Sketcher.Constraint("Equal", 38, 42),
    Sketcher.Constraint("Radius", 1, 5.0),
    Sketcher.Constraint("DistanceX", 0, 2, 0, 1, 53.0),
    Sketcher.Constraint("DistanceY", -1, 1, 1, 3, 50.0),
    Sketcher.Constraint("DistanceX", 1, 3, -1, 1, 162.5),
    Sketcher.Constraint("DistanceX", 9, 3, -1, 1, 94.5),
    Sketcher.Constraint("DistanceX", 17, 3, -1, 1, 26.5),
    Sketcher.Constraint("DistanceY", 2, 2, 2, 1, 40.8023),
    Sketcher.Constraint("DistanceY", 41, 3, -1, 1, 10.802),
])
sketch2.setExpression("Constraints[184]", "Params.sketch2_radius")
sketch2.setExpression("Constraints[185]", "Params.sketch2_width")
pad2 = body.newObject("PartDesign::Pad", "Pad001")
pad2.Profile = sketch2
pad2.setExpression("Length", "Params.pad2_length")

# Sketch on XY plane
sketch3 = body.newObject("Sketcher::SketchObject", "Sketch002")
sketch3.AttachmentSupport = (doc.getObject("XY_Plane"), [""])
sketch3.MapMode = "FlatFace"
sketch3.AttachmentOffset = App.Placement(Vector(0, 0, -5), App.Rotation())
add_polygon(sketch3, [(171.5, 22), (171.5, -22), (183.5, -22), (183.5, 22)])  # lines 0-3
sketch3.addConstraint([
    Sketcher.Constraint("Vertical", 0),
    Sketcher.Constraint("Horizontal", 1),
    Sketcher.Constraint("Vertical", 2),
    Sketcher.Constraint("Horizontal", 3),
    Sketcher.Constraint("DistanceX", 1, 1, 1, 2, 12.0),
    Sketcher.Constraint("DistanceY", 0, 2, 0, 1, 44.0),
    Sketcher.Constraint("DistanceY", 0, 2, -1, 1, 22.0),
    Sketcher.Constraint("DistanceX", -1, 1, 0, 2, 171.5),
])
sketch3.setExpression("Constraints[8]", "Params.sketch3_width")
sketch3.setExpression("Constraints[9]", "Params.sketch3_height")
pad3 = body.newObject("PartDesign::Pad", "Pad002")
pad3.Profile = sketch3
pad3.setExpression("Length", "Params.pad3_length")
pad3.Midplane = True

doc.recompute()
